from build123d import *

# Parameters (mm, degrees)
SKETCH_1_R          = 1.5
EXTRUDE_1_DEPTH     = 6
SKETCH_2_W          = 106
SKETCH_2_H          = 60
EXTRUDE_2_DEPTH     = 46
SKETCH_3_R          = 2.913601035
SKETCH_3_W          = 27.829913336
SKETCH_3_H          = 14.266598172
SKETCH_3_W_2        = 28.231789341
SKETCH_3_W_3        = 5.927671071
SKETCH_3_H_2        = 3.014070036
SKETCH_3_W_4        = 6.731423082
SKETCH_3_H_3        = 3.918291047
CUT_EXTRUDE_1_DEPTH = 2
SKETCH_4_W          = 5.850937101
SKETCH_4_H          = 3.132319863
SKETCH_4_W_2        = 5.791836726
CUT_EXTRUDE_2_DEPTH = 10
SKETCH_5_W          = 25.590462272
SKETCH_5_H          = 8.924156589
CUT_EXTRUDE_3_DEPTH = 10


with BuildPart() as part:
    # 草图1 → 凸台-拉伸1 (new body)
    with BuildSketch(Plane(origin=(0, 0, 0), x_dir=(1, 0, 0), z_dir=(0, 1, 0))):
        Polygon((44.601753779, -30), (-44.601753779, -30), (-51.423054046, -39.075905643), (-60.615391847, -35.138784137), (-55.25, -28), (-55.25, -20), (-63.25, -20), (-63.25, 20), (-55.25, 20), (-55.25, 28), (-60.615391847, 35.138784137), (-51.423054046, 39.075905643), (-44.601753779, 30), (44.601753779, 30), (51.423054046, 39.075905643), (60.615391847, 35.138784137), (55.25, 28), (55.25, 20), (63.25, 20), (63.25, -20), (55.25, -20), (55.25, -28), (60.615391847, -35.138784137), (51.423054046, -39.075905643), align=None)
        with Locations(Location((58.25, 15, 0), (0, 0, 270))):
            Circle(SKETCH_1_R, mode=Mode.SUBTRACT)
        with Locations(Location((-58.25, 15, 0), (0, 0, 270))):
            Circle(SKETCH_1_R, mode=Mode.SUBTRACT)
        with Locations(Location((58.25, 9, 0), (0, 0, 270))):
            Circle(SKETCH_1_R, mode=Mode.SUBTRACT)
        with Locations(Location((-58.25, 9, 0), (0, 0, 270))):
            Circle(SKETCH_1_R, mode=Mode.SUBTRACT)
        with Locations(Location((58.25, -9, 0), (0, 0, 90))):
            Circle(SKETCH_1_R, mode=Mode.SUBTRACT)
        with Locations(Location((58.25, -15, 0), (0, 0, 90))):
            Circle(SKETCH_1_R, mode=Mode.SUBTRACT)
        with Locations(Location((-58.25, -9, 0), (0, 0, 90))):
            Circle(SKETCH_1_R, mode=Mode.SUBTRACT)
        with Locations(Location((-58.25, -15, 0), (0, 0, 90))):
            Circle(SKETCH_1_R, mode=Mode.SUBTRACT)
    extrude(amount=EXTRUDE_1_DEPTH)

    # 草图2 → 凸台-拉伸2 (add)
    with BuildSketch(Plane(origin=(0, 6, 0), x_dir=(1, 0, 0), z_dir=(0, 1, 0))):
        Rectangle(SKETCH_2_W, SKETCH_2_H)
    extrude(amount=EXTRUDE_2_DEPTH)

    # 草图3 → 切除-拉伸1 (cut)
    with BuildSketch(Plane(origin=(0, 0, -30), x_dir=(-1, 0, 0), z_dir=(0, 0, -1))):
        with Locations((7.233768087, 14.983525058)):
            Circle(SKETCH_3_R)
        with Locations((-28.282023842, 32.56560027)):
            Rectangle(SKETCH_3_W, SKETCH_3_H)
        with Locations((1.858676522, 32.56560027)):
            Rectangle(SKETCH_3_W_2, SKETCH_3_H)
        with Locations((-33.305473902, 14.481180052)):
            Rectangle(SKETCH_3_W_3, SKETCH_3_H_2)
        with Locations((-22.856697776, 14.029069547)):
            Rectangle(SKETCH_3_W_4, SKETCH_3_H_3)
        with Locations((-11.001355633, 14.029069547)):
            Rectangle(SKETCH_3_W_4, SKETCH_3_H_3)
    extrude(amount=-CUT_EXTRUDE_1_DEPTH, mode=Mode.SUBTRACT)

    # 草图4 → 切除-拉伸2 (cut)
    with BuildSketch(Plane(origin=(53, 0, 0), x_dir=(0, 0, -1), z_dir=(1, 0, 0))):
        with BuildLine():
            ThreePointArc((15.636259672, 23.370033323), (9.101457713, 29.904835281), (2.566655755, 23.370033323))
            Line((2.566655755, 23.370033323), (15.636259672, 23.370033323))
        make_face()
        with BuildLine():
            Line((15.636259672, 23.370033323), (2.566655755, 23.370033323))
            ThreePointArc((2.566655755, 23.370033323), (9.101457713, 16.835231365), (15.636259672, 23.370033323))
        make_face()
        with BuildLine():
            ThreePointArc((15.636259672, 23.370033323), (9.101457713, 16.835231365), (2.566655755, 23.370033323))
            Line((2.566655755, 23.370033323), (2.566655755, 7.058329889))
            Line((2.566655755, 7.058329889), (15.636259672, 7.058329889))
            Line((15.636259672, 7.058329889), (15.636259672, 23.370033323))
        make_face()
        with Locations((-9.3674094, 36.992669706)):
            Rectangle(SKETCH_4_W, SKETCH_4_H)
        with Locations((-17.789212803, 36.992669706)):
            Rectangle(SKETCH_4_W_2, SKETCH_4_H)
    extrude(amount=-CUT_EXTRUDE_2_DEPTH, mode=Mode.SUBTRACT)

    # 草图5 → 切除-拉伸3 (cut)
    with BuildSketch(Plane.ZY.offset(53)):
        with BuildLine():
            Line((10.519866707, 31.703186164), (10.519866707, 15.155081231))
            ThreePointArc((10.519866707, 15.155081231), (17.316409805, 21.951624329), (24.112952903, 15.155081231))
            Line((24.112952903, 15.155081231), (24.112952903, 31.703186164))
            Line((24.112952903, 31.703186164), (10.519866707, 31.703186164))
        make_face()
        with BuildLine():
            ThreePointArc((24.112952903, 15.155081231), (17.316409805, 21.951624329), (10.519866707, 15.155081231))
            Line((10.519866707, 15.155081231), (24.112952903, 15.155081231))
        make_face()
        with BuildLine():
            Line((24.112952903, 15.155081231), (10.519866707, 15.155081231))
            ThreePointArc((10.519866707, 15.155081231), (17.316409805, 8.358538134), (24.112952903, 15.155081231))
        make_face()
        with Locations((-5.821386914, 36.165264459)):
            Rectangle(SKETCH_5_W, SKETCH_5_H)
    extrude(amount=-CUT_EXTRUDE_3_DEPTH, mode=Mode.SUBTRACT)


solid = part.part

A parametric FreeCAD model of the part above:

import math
import FreeCAD as App
import Part
import Sketcher
Q = App.Units.Quantity

doc = App.newDocument("Part")
body = doc.addObject("PartDesign::Body", "Body")

sketch1 = doc.addObject("Sketcher::SketchObject", "Sketch")
body.addObject(sketch1)
sketch1.AttachmentSupport = (doc.XZ_Plane, [""])
sketch1.MapMode = "FlatFace"
sketch1.addGeometry([
    Part.LineSegment(App.Vector(-44.601754, 30, 0), App.Vector(44.601754, 30, 0)),
    Part.LineSegment(App.Vector(44.601754, 30, 0), App.Vector(51.423054, 39.075906, 0)),
    Part.LineSegment(App.Vector(51.423054, 39.075906, 0), App.Vector(60.615392, 35.138784, 0)),
    Part.LineSegment(App.Vector(60.615392, 35.138784, 0), App.Vector(55.25, 28, 0)),
    Part.LineSegment(App.Vector(55.25, 28, 0), App.Vector(55.25, 20, 0)),
    Part.LineSegment(App.Vector(55.25, 20, 0), App.Vector(63.25, 20, 0)),
    Part.LineSegment(App.Vector(63.25, 20, 0), App.Vector(63.25, -20, 0)),
    Part.LineSegment(App.Vector(63.25, -20, 0), App.Vector(55.25, -20, 0)),
    Part.LineSegment(App.Vector(55.25, -20, 0), App.Vector(55.25, -28, 0)),
    Part.LineSegment(App.Vector(55.25, -28, 0), App.Vector(60.615392, -35.138784, 0)),
    Part.LineSegment(App.Vector(60.615392, -35.138784, 0), App.Vector(51.423054, -39.075906, 0)),
    Part.LineSegment(App.Vector(51.423054, -39.075906, 0), App.Vector(44.601754, -30, 0)),
    Part.LineSegment(App.Vector(44.601754, -30, 0), App.Vector(-44.601754, -30, 0)),
    Part.LineSegment(App.Vector(-44.601754, -30, 0), App.Vector(-51.423054, -39.075906, 0)),
    Part.LineSegment(App.Vector(-51.423054, -39.075906, 0), App.Vector(-60.615392, -35.138784, 0)),
    Part.LineSegment(App.Vector(-60.615392, -35.138784, 0), App.Vector(-55.25, -28, 0)),
    Part.LineSegment(App.Vector(-55.25, -28, 0), App.Vector(-55.25, -20, 0)),
    Part.LineSegment(App.Vector(-55.25, -20, 0), App.Vector(-63.25, -20, 0)),
    Part.LineSegment(App.Vector(-63.25, -20, 0), App.Vector(-63.25, 20, 0)),
    Part.LineSegment(App.Vector(-63.25, 20, 0), App.Vector(-55.25, 20, 0)),
    Part.LineSegment(App.Vector(-55.25, 20, 0), App.Vector(-55.25, 28, 0)),
    Part.LineSegment(App.Vector(-55.25, 28, 0), App.Vector(-60.615392, 35.138784, 0)),
    Part.LineSegment(App.Vector(-60.615392, 35.138784, 0), App.Vector(-51.423054, 39.075906, 0)),
    Part.LineSegment(App.Vector(-51.423054, 39.075906, 0), App.Vector(-44.601754, 30, 0)),
    Part.Circle(App.Vector(58.25, 15, 0), App.Vector(0, 0, 1), 1.5),
    Part.Circle(App.Vector(58.25, 9, 0), App.Vector(0, 0, 1), 1.5),
    Part.Circle(App.Vector(-58.25, 15, 0), App.Vector(0, 0, 1), 1.5),
    Part.Circle(App.Vector(-58.25, 9, 0), App.Vector(0, 0, 1), 1.5),
    Part.Circle(App.Vector(58.25, -9, 0), App.Vector(0, 0, 1), 1.5),
    Part.Circle(App.Vector(58.25, -15, 0), App.Vector(0, 0, 1), 1.5),
    Part.Circle(App.Vector(-58.25, -9, 0), App.Vector(0, 0, 1), 1.5),
    Part.Circle(App.Vector(-58.25, -15, 0), App.Vector(0, 0, 1), 1.5),
], False)
sketch1.addConstraint([
    Sketcher.Constraint("Coincident", 0, 2, 1, 1),
    Sketcher.Constraint("Coincident", 1, 2, 2, 1),
    Sketcher.Constraint("Coincident", 2, 2, 3, 1),
    Sketcher.Constraint("Coincident", 3, 2, 4, 1),
    Sketcher.Constraint("Coincident", 4, 2, 5, 1),
    Sketcher.Constraint("Coincident", 5, 2, 6, 1),
    Sketcher.Constraint("Coincident", 6, 2, 7, 1),
    Sketcher.Constraint("Coincident", 7, 2, 8, 1),
    Sketcher.Constraint("Coincident", 8, 2, 9, 1),
    Sketcher.Constraint("Coincident", 9, 2, 10, 1),
    Sketcher.Constraint("Coincident", 10, 2, 11, 1),
    Sketcher.Constraint("Coincident", 11, 2, 12, 1),
    Sketcher.Constraint("Coincident", 12, 2, 13, 1),
    Sketcher.Constraint("Coincident", 13, 2, 14, 1),
    Sketcher.Constraint("Coincident", 14, 2, 15, 1),
    Sketcher.Constraint("Coincident", 15, 2, 16, 1),
    Sketcher.Constraint("Coincident", 16, 2, 17, 1),
    Sketcher.Constraint("Coincident", 17, 2, 18, 1),
    Sketcher.Constraint("Coincident", 18, 2, 19, 1),
    Sketcher.Constraint("Coincident", 19, 2, 20, 1),
    Sketcher.Constraint("Coincident", 20, 2, 21, 1),
    Sketcher.Constraint("Coincident", 21, 2, 22, 1),
    Sketcher.Constraint("Coincident", 22, 2, 23, 1),
    Sketcher.Constraint("Coincident", 23, 2, 0, 1),
    Sketcher.Constraint("Horizontal", 0),
    Sketcher.Constraint("Vertical", 4),
    Sketcher.Constraint("Horizontal", 5),
    Sketcher.Constraint("Vertical", 6),
    Sketcher.Constraint("Horizontal", 7),
    Sketcher.Constraint("Vertical", 8),
    Sketcher.Constraint("Horizontal", 12),
    Sketcher.Constraint("Vertical", 16),
    Sketcher.Constraint("Horizontal", 17),
    Sketcher.Constraint("Vertical", 18),
    Sketcher.Constraint("Horizontal", 19),
    Sketcher.Constraint("Vertical", 20),
    Sketcher.Constraint("Equal", 24, 25),
    Sketcher.Constraint("Equal", 25, 26),
    Sketcher.Constraint("Equal", 26, 27),
    Sketcher.Constraint("Equal", 27, 28),
    Sketcher.Constraint("Equal", 28, 29),
    Sketcher.Constraint("Equal", 29, 30),
    Sketcher.Constraint("Equal", 30, 31),
    Sketcher.Constraint("Symmetric", 27, 3, 28, 3, -1, 1),
    Sketcher.Constraint("Symmetric", 26, 3, 29, 3, -1, 1),
    Sketcher.Constraint("Symmetric", 25, 3, 30, 3, -1, 1),
    Sketcher.Constraint("Symmetric", 24, 3, 31, 3, -1, 1),
    Sketcher.Constraint("Symmetric", 0, 2, 12, 2, -1, 1),
    Sketcher.Constraint("Symmetric", 1, 2, 13, 2, -1, 1),
    Sketcher.Constraint("Symmetric", 2, 2, 14, 2, -1, 1),
    Sketcher.Constraint("Symmetric", 3, 2, 15, 2, -1, 1),
    Sketcher.Constraint("Symmetric", 5, 2, 17, 2, -1, 1),
    Sketcher.Constraint("Symmetric", 7, 2, 19, 2, -1, 1),
    Sketcher.Constraint("Symmetric", 9, 2, 21, 2, -1, 1),
    Sketcher.Constraint("Symmetric", 10, 2, 22, 2, -1, 1),
    Sketcher.Constraint("Symmetric", 24, 3, 26, 3, -2),
    Sketcher.Constraint("Symmetric", 25, 3, 27, 3, -2),
    Sketcher.Constraint("Symmetric", 10, 2, 13, 2, -2),
    Sketcher.Constraint("Symmetric", 9, 2, 14, 2, -2),
    Sketcher.Constraint("Symmetric", 8, 2, 15, 2, -2),
    Sketcher.Constraint("Parallel", 1, 3),
    Sketcher.Constraint("Parallel", 9, 11),
    Sketcher.Constraint("Parallel", 11, 21),
    Sketcher.Constraint("Parallel", 21, 23),
    Sketcher.Constraint("Horizontal", 7, 2, 16, 2),
    Sketcher.Constraint("Vertical", 24, 3, 25, 3),
    Sketcher.Constraint("Equal", 19, 4),
    Sketcher.Constraint("Diameter", 24, Q("3 mm")),
    Sketcher.Constraint("DistanceX", 5, 1, 5, 2, Q("8 mm")),
    Sketcher.Constraint("DistanceY", 6, 2, 6, 1, Q("40 mm")),
    Sketcher.Constraint("Distance", 2, Q("10 mm")),
    Sketcher.Constraint("DistanceY", -1, 1, 24, 3, Q("15 mm")),
    Sketcher.Constraint("DistanceY", -1, 1, 25, 3, Q("9 mm")),
    Sketcher.Constraint("DistanceY", -1, 1, 0, 2, Q("30 mm")),
    Sketcher.Constraint("DistanceX", 3, 2, 24, 3, Q("3 mm")),
    Sketcher.Constraint("DistanceX", 26, 3, 24, 3, Q("116.5 mm")),
    Sketcher.Constraint("DistanceX", 0, 2, 1, 2, Q("6.8213 mm")),
    Sketcher.Constraint("Distance", 1, Q("11.35351 mm")),
    Sketcher.Constraint("DistanceX", 0, 1, 0, 2, Q("89.203508 mm")),
])
pad1 = doc.addObject("PartDesign::Pad", "Pad")
body.addObject(pad1)
pad1.Profile = sketch1
pad1.Length = 6
pad1.Reversed = True

sketch2 = doc.addObject("Sketcher::SketchObject", "Sketch001")
body.addObject(sketch2)
sketch2.AttachmentSupport = (doc.XZ_Plane, [""])
sketch2.MapMode = "FlatFace"
sketch2.AttachmentOffset = App.Placement(App.Vector(0, 0, -6), App.Rotation())
sketch2.addGeometry([
    Part.LineSegment(App.Vector(-53, -30, 0), App.Vector(-53, 30, 0)),
    Part.LineSegment(App.Vector(-53, 30, 0), App.Vector(53, 30, 0)),
    Part.LineSegment(App.Vector(53, 30, 0), App.Vector(53, -30, 0)),
    Part.LineSegment(App.Vector(53, -30, 0), App.Vector(-53, -30, 0)),
], False)
sketch2.addConstraint([
    Sketcher.Constraint("Coincident", 0, 2, 1, 1),
    Sketcher.Constraint("Coincident", 1, 2, 2, 1),
    Sketcher.Constraint("Coincident", 2, 2, 3, 1),
    Sketcher.Constraint("Coincident", 3, 2, 0, 1),
    Sketcher.Constraint("Vertical", 0),
    Sketcher.Constraint("Horizontal", 1),
    Sketcher.Constraint("Vertical", 2),
    Sketcher.Constraint("Horizontal", 3),
    Sketcher.Constraint("Symmetric", 0, 2, 2, 2, -1, 1),
    Sketcher.Constraint("DistanceX", 1, 1, 1, 2, Q("106 mm")),
    Sketcher.Constraint("DistanceY", 0, 1, 0, 2, Q("60 mm")),
])
pad2 = doc.addObject("PartDesign::Pad", "Pad001")
body.addObject(pad2)
pad2.Profile = sketch2
pad2.Length = 46
pad2.Reversed = True

sketch3 = doc.addObject("Sketcher::SketchObject", "Sketch002")
body.addObject(sketch3)
sketch3.AttachmentSupport = (doc.XY_Plane, [""])
sketch3.MapMode = "FlatFace"
sketch3.AttachmentOffset = App.Placement(App.Vector(0, 0, -30), App.Rotation())
sketch3.addGeometry([
    Part.Circle(App.Vector(-7.233768, 14.983525, 0), App.Vector(0, 0, 1), 2.913601),
    Part.LineSegment(App.Vector(42.196981, 39.698899, 0), App.Vector(42.196981, 25.432301, 0)),
    Part.LineSegment(App.Vector(42.196981, 25.432301, 0), App.Vector(14.367067, 25.432301, 0)),
    Part.LineSegment(App.Vector(14.367067, 25.432301, 0), App.Vector(14.367067, 39.698899, 0)),
    Part.LineSegment(App.Vector(14.367067, 39.698899, 0), App.Vector(42.196981, 39.698899, 0)),
    Part.LineSegment(App.Vector(12.257218, 39.698899, 0), App.Vector(12.257218, 25.432301, 0)),
    Part.LineSegment(App.Vector(12.257218, 25.432301, 0), App.Vector(-15.974571, 25.432301, 0)),
    Part.LineSegment(App.Vector(-15.974571, 25.432301, 0), App.Vector(-15.974571, 39.698899, 0)),
    Part.LineSegment(App.Vector(-15.974571, 39.698899, 0), App.Vector(12.257218, 39.698899, 0)),
    Part.LineSegment(App.Vector(36.269309, 15.988215, 0), App.Vector(36.269309, 12.974145, 0)),
    Part.LineSegment(App.Vector(36.269309, 12.974145, 0), App.Vector(30.341638, 12.974145, 0)),
    Part.LineSegment(App.Vector(30.341638, 12.974145, 0), App.Vector(30.341638, 15.988215, 0)),
    Part.LineSegment(App.Vector(30.341638, 15.988215, 0), App.Vector(36.269309, 15.988215, 0)),
    Part.LineSegment(App.Vector(26.222409, 15.988215, 0), App.Vector(26.222409, 12.069924, 0)),
    Part.LineSegment(App.Vector(26.222409, 12.069924, 0), App.Vector(19.490986, 12.069924, 0)),
    Part.LineSegment(App.Vector(19.490986, 12.069924, 0), App.Vector(19.490986, 15.988215, 0)),
    Part.LineSegment(App.Vector(19.490986, 15.988215, 0), App.Vector(26.222409, 15.988215, 0)),
    Part.LineSegment(App.Vector(14.367067, 15.988215, 0), App.Vector(14.367067, 12.069924, 0)),
    Part.LineSegment(App.Vector(14.367067, 12.069924, 0), App.Vector(7.635644, 12.069924, 0)),
    Part.LineSegment(App.Vector(7.635644, 12.069924, 0), App.Vector(7.635644, 15.988215, 0)),
    Part.LineSegment(App.Vector(7.635644, 15.988215, 0), App.Vector(14.367067, 15.988215, 0)),
], False)
sketch3.addConstraint([
    Sketcher.Constraint("Coincident", 1, 2, 2, 1),
    Sketcher.Constraint("Coincident", 2, 2, 3, 1),
    Sketcher.Constraint("Coincident", 3, 2, 4, 1),
    Sketcher.Constraint("Coincident", 4, 2, 1, 1),
    Sketcher.Constraint("Coincident", 5, 2, 6, 1),
    Sketcher.Constraint("Coincident", 6, 2, 7, 1),
    Sketcher.Constraint("Coincident", 7, 2, 8, 1),
    Sketcher.Constraint("Coincident", 8, 2, 5, 1),
    Sketcher.Constraint("Coincident", 9, 2, 10, 1),
    Sketcher.Constraint("Coincident", 10, 2, 11, 1),
    Sketcher.Constraint("Coincident", 11, 2, 12, 1),
    Sketcher.Constraint("Coincident", 12, 2, 9, 1),
    Sketcher.Constraint("Coincident", 13, 2, 14, 1),
    Sketcher.Constraint("Coincident", 14, 2, 15, 1),
    Sketcher.Constraint("Coincident", 15, 2, 16, 1),
    Sketcher.Constraint("Coincident", 16, 2, 13, 1),
    Sketcher.Constraint("Coincident", 17, 2, 18, 1),
    Sketcher.Constraint("Coincident", 18, 2, 19, 1),
    Sketcher.Constraint("Coincident", 19, 2, 20, 1),
    Sketcher.Constraint("Coincident", 20, 2, 17, 1),
    Sketcher.Constraint("Vertical", 1),
    Sketcher.Constraint("Horizontal", 2),
    Sketcher.Constraint("Vertical", 3),
    Sketcher.Constraint("Horizontal", 4),
    Sketcher.Constraint("Vertical", 5),
    Sketcher.Constraint("Horizontal", 6),
    Sketcher.Constraint("Vertical", 7),
    Sketcher.Constraint("Horizontal", 8),
    Sketcher.Constraint("Vertical", 9),
    Sketcher.Constraint("Horizontal", 10),
    Sketcher.Constraint("Vertical", 11),
    Sketcher.Constraint("Horizontal", 12),
    Sketcher.Constraint("Vertical", 13),
    Sketcher.Constraint("Horizontal", 14),
    Sketcher.Constraint("Vertical", 15),
    Sketcher.Constraint("Horizontal", 16),
    Sketcher.Constraint("Vertical", 17),
    Sketcher.Constraint("Horizontal", 18),
    Sketcher.Constraint("Vertical", 19),
    Sketcher.Constraint("Horizontal", 20),
    Sketcher.Constraint("Horizontal", 2, 2, 5, 2),
    Sketcher.Constraint("Horizontal", 4, 2, 7, 2),
    Sketcher.Constraint("Horizontal", 12, 2, 15, 2),
    Sketcher.Constraint("Horizontal", 14, 2, 17, 2),
    Sketcher.Constraint("Horizontal", 16, 2, 19, 2),
    Sketcher.Constraint("Vertical", 3, 2, 17, 2),
    Sketcher.Constraint("Equal", 16, 18),
    Sketcher.Constraint("Diameter", 0, Q("5.827202 mm")),
    Sketcher.Constraint("DistanceY", 1, 2, 1, 1, Q("14.266598 mm")),
    Sketcher.Constraint("DistanceX", 6, 2, 6, 1, Q("28.231789 mm")),
    Sketcher.Constraint("DistanceX", 10, 2, 10, 1, Q("5.927671 mm")),
    Sketcher.Constraint("DistanceY", 9, 2, 9, 1, Q("3.01407 mm")),
    Sketcher.Constraint("DistanceY", 13, 2, 13, 1, Q("3.918291 mm")),
    Sketcher.Constraint("DistanceY", -1, 1, 1, 2, Q("25.432301 mm")),
    Sketcher.Constraint("DistanceX", 13, 2, 9, 2, Q("10.0469 mm")),
    Sketcher.Constraint("DistanceX", 2, 2, 2, 1, Q("27.829913 mm")),
    Sketcher.Constraint("DistanceX", 14, 2, 14, 1, Q("6.731423 mm")),
    Sketcher.Constraint("DistanceX", 0, 3, -1, 1, Q("7.233768 mm")),
    Sketcher.Constraint("DistanceX", -1, 1, 1, 2, Q("42.196981 mm")),
    Sketcher.Constraint("DistanceX", -1, 1, 5, 2, Q("12.257218 mm")),
    Sketcher.Constraint("DistanceX", -1, 1, 9, 2, Q("36.269309 mm")),
    Sketcher.Constraint("DistanceY", -1, 1, 0, 3, Q("14.983525 mm")),
    Sketcher.Constraint("DistanceY", -1, 1, 9, 2, Q("12.974145 mm")),
])
pocket1 = doc.addObject("PartDesign::Pocket", "Pocket")
body.addObject(pocket1)
pocket1.Profile = sketch3
pocket1.Length = 2
pocket1.Reversed = True

sketch4 = doc.addObject("Sketcher::SketchObject", "Sketch003")
body.addObject(sketch4)
sketch4.AttachmentSupport = (doc.YZ_Plane, [""])
sketch4.MapMode = "FlatFace"
sketch4.AttachmentOffset = App.Placement(App.Vector(0, 0, 53), App.Rotation())
sketch4.addGeometry([
    Part.ArcOfCircle(Part.Circle(App.Vector(23.370033, -9.101458, 0), App.Vector(0, 0, 1), 6.534802), math.radians(-90), math.radians(90)),
    Part.LineSegment(App.Vector(23.370033, -2.566656, 0), App.Vector(7.05833, -2.566656, 0)),
    Part.LineSegment(App.Vector(7.05833, -2.566656, 0), App.Vector(7.05833, -15.63626, 0)),
    Part.LineSegment(App.Vector(7.05833, -15.63626, 0), App.Vector(23.370033, -15.63626, 0)),
    Part.LineSegment(App.Vector(38.55883, 12.292878, 0), App.Vector(35.42651, 12.292878, 0)),
    Part.LineSegment(App.Vector(35.42651, 12.292878, 0), App.Vector(35.42651, 6.441941, 0)),
    Part.LineSegment(App.Vector(35.42651, 6.441941, 0), App.Vector(38.55883, 6.441941, 0)),
    Part.LineSegment(App.Vector(38.55883, 6.441941, 0), App.Vector(38.55883, 12.292878, 0)),
    Part.LineSegment(App.Vector(38.55883, 20.685131, 0), App.Vector(35.42651, 20.685131, 0)),
    Part.LineSegment(App.Vector(35.42651, 20.685131, 0), App.Vector(35.42651, 14.893294, 0)),
    Part.LineSegment(App.Vector(35.42651, 14.893294, 0), App.Vector(38.55883, 14.893294, 0)),
    Part.LineSegment(App.Vector(38.55883, 14.893294, 0), App.Vector(38.55883, 20.685131, 0)),
], False)
sketch4.addConstraint([
    Sketcher.Constraint("Tangent", 0, 2, 1, 1),
    Sketcher.Constraint("Coincident", 1, 2, 2, 1),
    Sketcher.Constraint("Coincident", 2, 2, 3, 1),
    Sketcher.Constraint("Tangent", 3, 2, 0, 1),
    Sketcher.Constraint("Coincident", 4, 2, 5, 1),
    Sketcher.Constraint("Coincident", 5, 2, 6, 1),
    Sketcher.Constraint("Coincident", 6, 2, 7, 1),
    Sketcher.Constraint("Coincident", 7, 2, 4, 1),
    Sketcher.Constraint("Coincident", 8, 2, 9, 1),
    Sketcher.Constraint("Coincident", 9, 2, 10, 1),
    Sketcher.Constraint("Coincident", 10, 2, 11, 1),
    Sketcher.Constraint("Coincident", 11, 2, 8, 1),
    Sketcher.Constraint("Horizontal", 1),
    Sketcher.Constraint("Vertical", 2),
    Sketcher.Constraint("Horizontal", 3),
    Sketcher.Constraint("Horizontal", 4),
    Sketcher.Constraint("Vertical", 5),
    Sketcher.Constraint("Horizontal", 6),
    Sketcher.Constraint("Vertical", 7),
    Sketcher.Constraint("Horizontal", 8),
    Sketcher.Constraint("Vertical", 9),
    Sketcher.Constraint("Horizontal", 10),
    Sketcher.Constraint("Vertical", 11),
    Sketcher.Constraint("Vertical", 5, 2, 8, 2),
    Sketcher.Constraint("Vertical", 7, 2, 10, 2),
    Sketcher.Constraint("Radius", 0, Q("6.534802 mm")),
    Sketcher.Constraint("DistanceX", 4, 2, 4, 1, Q("3.13232 mm")),
    Sketcher.Constraint("DistanceY", 0, 3, 5, 2, Q("15.543399 mm")),
    Sketcher.Constraint("DistanceX", 1, 2, 1, 1, Q("16.311703 mm")),
    Sketcher.Constraint("DistanceY", 5, 2, 5, 1, Q("5.850937 mm")),
    Sketcher.Constraint("DistanceY", 9, 2, 9, 1, Q("5.791837 mm")),
    Sketcher.Constraint("DistanceX", -1, 1, 1, 2, Q("7.05833 mm")),
    Sketcher.Constraint("DistanceY", 2, 2, -1, 1, Q("15.63626 mm")),
    Sketcher.Constraint("DistanceX", -1, 1, 4, 2, Q("35.42651 mm")),
    Sketcher.Constraint("DistanceY", -1, 1, 8, 2, Q("20.685131 mm")),
])
pocket2 = doc.addObject("PartDesign::Pocket", "Pocket001")
body.addObject(pocket2)
pocket2.Profile = sketch4
pocket2.Length = 10

sketch5 = doc.addObject("Sketcher::SketchObject", "Sketch004")
body.addObject(sketch5)
sketch5.AttachmentSupport = (doc.YZ_Plane, [""])
sketch5.MapMode = "FlatFace"
sketch5.AttachmentOffset = App.Placement(App.Vector(0, 0, -53), App.Rotation())
sketch5.addGeometry([
    Part.LineSegment(App.Vector(15.155081, 24.112953, 0), App.Vector(31.703186, 24.112953, 0)),
    Part.LineSegment(App.Vector(31.703186, 24.112953, 0), App.Vector(31.703186, 10.519867, 0)),
    Part.LineSegment(App.Vector(31.703186, 10.519867, 0), App.Vector(15.155081, 10.519867, 0)),
    Part.ArcOfCircle(Part.Circle(App.Vector(15.155081, 17.31641, 0), App.Vector(0, 0, 1), 6.796543), math.radians(90), math.radians(270)),
    Part.LineSegment(App.Vector(40.627343, -18.616618, 0), App.Vector(31.703186, -18.616618, 0)),
    Part.LineSegment(App.Vector(31.703186, -18.616618, 0), App.Vector(31.703186, 6.973844, 0)),
    Part.LineSegment(App.Vector(31.703186, 6.973844, 0), App.Vector(40.627343, 6.973844, 0)),
    Part.LineSegment(App.Vector(40.627343, 6.973844, 0), App.Vector(40.627343, -18.616618, 0)),
], False)
sketch5.addConstraint([
    Sketcher.Constraint("Coincident", 0, 2, 1, 1),
    Sketcher.Constraint("Coincident", 1, 2, 2, 1),
    Sketcher.Constraint("Tangent", 2, 2, 3, 2),
    Sketcher.Constraint("Tangent", 3, 1, 0, 1),
    Sketcher.Constraint("Coincident", 4, 2, 5, 1),
    Sketcher.Constraint("Coincident", 5, 2, 6, 1),
    Sketcher.Constraint("Coincident", 6, 2, 7, 1),
    Sketcher.Constraint("Coincident", 7, 2, 4, 1),
    Sketcher.Constraint("Horizontal", 0),
    Sketcher.Constraint("Vertical", 1),
    Sketcher.Constraint("Horizontal", 2),
    Sketcher.Constraint("Horizontal", 4),
    Sketcher.Constraint("Vertical", 5),
    Sketcher.Constraint("Horizontal", 6),
    Sketcher.Constraint("Vertical", 7),
    Sketcher.Constraint("Vertical", 1, 2, 4, 2),
    Sketcher.Constraint("Radius", 3, Q("6.796543 mm")),
    Sketcher.Constraint("DistanceX", 0, 1, 0, 2, Q("16.548105 mm")),
    Sketcher.Constraint("DistanceX", 4, 2, 4, 1, Q("8.924157 mm")),
    Sketcher.Constraint("DistanceY", 5, 1, 5, 2, Q("25.590462 mm")),
    Sketcher.Constraint("DistanceX", -1, 1, 3, 3, Q("15.155081 mm")),
    Sketcher.Constraint("DistanceY", -1, 1, 3, 3, Q("17.31641 mm")),
    Sketcher.Constraint("DistanceY", 4, 2, -1, 1, Q("18.616618 mm")),
])
pocket3 = doc.addObject("PartDesign::Pocket", "Pocket002")
body.addObject(pocket3)
pocket3.Profile = sketch5
pocket3.Length = 10
pocket3.Reversed = True

doc.recompute()
